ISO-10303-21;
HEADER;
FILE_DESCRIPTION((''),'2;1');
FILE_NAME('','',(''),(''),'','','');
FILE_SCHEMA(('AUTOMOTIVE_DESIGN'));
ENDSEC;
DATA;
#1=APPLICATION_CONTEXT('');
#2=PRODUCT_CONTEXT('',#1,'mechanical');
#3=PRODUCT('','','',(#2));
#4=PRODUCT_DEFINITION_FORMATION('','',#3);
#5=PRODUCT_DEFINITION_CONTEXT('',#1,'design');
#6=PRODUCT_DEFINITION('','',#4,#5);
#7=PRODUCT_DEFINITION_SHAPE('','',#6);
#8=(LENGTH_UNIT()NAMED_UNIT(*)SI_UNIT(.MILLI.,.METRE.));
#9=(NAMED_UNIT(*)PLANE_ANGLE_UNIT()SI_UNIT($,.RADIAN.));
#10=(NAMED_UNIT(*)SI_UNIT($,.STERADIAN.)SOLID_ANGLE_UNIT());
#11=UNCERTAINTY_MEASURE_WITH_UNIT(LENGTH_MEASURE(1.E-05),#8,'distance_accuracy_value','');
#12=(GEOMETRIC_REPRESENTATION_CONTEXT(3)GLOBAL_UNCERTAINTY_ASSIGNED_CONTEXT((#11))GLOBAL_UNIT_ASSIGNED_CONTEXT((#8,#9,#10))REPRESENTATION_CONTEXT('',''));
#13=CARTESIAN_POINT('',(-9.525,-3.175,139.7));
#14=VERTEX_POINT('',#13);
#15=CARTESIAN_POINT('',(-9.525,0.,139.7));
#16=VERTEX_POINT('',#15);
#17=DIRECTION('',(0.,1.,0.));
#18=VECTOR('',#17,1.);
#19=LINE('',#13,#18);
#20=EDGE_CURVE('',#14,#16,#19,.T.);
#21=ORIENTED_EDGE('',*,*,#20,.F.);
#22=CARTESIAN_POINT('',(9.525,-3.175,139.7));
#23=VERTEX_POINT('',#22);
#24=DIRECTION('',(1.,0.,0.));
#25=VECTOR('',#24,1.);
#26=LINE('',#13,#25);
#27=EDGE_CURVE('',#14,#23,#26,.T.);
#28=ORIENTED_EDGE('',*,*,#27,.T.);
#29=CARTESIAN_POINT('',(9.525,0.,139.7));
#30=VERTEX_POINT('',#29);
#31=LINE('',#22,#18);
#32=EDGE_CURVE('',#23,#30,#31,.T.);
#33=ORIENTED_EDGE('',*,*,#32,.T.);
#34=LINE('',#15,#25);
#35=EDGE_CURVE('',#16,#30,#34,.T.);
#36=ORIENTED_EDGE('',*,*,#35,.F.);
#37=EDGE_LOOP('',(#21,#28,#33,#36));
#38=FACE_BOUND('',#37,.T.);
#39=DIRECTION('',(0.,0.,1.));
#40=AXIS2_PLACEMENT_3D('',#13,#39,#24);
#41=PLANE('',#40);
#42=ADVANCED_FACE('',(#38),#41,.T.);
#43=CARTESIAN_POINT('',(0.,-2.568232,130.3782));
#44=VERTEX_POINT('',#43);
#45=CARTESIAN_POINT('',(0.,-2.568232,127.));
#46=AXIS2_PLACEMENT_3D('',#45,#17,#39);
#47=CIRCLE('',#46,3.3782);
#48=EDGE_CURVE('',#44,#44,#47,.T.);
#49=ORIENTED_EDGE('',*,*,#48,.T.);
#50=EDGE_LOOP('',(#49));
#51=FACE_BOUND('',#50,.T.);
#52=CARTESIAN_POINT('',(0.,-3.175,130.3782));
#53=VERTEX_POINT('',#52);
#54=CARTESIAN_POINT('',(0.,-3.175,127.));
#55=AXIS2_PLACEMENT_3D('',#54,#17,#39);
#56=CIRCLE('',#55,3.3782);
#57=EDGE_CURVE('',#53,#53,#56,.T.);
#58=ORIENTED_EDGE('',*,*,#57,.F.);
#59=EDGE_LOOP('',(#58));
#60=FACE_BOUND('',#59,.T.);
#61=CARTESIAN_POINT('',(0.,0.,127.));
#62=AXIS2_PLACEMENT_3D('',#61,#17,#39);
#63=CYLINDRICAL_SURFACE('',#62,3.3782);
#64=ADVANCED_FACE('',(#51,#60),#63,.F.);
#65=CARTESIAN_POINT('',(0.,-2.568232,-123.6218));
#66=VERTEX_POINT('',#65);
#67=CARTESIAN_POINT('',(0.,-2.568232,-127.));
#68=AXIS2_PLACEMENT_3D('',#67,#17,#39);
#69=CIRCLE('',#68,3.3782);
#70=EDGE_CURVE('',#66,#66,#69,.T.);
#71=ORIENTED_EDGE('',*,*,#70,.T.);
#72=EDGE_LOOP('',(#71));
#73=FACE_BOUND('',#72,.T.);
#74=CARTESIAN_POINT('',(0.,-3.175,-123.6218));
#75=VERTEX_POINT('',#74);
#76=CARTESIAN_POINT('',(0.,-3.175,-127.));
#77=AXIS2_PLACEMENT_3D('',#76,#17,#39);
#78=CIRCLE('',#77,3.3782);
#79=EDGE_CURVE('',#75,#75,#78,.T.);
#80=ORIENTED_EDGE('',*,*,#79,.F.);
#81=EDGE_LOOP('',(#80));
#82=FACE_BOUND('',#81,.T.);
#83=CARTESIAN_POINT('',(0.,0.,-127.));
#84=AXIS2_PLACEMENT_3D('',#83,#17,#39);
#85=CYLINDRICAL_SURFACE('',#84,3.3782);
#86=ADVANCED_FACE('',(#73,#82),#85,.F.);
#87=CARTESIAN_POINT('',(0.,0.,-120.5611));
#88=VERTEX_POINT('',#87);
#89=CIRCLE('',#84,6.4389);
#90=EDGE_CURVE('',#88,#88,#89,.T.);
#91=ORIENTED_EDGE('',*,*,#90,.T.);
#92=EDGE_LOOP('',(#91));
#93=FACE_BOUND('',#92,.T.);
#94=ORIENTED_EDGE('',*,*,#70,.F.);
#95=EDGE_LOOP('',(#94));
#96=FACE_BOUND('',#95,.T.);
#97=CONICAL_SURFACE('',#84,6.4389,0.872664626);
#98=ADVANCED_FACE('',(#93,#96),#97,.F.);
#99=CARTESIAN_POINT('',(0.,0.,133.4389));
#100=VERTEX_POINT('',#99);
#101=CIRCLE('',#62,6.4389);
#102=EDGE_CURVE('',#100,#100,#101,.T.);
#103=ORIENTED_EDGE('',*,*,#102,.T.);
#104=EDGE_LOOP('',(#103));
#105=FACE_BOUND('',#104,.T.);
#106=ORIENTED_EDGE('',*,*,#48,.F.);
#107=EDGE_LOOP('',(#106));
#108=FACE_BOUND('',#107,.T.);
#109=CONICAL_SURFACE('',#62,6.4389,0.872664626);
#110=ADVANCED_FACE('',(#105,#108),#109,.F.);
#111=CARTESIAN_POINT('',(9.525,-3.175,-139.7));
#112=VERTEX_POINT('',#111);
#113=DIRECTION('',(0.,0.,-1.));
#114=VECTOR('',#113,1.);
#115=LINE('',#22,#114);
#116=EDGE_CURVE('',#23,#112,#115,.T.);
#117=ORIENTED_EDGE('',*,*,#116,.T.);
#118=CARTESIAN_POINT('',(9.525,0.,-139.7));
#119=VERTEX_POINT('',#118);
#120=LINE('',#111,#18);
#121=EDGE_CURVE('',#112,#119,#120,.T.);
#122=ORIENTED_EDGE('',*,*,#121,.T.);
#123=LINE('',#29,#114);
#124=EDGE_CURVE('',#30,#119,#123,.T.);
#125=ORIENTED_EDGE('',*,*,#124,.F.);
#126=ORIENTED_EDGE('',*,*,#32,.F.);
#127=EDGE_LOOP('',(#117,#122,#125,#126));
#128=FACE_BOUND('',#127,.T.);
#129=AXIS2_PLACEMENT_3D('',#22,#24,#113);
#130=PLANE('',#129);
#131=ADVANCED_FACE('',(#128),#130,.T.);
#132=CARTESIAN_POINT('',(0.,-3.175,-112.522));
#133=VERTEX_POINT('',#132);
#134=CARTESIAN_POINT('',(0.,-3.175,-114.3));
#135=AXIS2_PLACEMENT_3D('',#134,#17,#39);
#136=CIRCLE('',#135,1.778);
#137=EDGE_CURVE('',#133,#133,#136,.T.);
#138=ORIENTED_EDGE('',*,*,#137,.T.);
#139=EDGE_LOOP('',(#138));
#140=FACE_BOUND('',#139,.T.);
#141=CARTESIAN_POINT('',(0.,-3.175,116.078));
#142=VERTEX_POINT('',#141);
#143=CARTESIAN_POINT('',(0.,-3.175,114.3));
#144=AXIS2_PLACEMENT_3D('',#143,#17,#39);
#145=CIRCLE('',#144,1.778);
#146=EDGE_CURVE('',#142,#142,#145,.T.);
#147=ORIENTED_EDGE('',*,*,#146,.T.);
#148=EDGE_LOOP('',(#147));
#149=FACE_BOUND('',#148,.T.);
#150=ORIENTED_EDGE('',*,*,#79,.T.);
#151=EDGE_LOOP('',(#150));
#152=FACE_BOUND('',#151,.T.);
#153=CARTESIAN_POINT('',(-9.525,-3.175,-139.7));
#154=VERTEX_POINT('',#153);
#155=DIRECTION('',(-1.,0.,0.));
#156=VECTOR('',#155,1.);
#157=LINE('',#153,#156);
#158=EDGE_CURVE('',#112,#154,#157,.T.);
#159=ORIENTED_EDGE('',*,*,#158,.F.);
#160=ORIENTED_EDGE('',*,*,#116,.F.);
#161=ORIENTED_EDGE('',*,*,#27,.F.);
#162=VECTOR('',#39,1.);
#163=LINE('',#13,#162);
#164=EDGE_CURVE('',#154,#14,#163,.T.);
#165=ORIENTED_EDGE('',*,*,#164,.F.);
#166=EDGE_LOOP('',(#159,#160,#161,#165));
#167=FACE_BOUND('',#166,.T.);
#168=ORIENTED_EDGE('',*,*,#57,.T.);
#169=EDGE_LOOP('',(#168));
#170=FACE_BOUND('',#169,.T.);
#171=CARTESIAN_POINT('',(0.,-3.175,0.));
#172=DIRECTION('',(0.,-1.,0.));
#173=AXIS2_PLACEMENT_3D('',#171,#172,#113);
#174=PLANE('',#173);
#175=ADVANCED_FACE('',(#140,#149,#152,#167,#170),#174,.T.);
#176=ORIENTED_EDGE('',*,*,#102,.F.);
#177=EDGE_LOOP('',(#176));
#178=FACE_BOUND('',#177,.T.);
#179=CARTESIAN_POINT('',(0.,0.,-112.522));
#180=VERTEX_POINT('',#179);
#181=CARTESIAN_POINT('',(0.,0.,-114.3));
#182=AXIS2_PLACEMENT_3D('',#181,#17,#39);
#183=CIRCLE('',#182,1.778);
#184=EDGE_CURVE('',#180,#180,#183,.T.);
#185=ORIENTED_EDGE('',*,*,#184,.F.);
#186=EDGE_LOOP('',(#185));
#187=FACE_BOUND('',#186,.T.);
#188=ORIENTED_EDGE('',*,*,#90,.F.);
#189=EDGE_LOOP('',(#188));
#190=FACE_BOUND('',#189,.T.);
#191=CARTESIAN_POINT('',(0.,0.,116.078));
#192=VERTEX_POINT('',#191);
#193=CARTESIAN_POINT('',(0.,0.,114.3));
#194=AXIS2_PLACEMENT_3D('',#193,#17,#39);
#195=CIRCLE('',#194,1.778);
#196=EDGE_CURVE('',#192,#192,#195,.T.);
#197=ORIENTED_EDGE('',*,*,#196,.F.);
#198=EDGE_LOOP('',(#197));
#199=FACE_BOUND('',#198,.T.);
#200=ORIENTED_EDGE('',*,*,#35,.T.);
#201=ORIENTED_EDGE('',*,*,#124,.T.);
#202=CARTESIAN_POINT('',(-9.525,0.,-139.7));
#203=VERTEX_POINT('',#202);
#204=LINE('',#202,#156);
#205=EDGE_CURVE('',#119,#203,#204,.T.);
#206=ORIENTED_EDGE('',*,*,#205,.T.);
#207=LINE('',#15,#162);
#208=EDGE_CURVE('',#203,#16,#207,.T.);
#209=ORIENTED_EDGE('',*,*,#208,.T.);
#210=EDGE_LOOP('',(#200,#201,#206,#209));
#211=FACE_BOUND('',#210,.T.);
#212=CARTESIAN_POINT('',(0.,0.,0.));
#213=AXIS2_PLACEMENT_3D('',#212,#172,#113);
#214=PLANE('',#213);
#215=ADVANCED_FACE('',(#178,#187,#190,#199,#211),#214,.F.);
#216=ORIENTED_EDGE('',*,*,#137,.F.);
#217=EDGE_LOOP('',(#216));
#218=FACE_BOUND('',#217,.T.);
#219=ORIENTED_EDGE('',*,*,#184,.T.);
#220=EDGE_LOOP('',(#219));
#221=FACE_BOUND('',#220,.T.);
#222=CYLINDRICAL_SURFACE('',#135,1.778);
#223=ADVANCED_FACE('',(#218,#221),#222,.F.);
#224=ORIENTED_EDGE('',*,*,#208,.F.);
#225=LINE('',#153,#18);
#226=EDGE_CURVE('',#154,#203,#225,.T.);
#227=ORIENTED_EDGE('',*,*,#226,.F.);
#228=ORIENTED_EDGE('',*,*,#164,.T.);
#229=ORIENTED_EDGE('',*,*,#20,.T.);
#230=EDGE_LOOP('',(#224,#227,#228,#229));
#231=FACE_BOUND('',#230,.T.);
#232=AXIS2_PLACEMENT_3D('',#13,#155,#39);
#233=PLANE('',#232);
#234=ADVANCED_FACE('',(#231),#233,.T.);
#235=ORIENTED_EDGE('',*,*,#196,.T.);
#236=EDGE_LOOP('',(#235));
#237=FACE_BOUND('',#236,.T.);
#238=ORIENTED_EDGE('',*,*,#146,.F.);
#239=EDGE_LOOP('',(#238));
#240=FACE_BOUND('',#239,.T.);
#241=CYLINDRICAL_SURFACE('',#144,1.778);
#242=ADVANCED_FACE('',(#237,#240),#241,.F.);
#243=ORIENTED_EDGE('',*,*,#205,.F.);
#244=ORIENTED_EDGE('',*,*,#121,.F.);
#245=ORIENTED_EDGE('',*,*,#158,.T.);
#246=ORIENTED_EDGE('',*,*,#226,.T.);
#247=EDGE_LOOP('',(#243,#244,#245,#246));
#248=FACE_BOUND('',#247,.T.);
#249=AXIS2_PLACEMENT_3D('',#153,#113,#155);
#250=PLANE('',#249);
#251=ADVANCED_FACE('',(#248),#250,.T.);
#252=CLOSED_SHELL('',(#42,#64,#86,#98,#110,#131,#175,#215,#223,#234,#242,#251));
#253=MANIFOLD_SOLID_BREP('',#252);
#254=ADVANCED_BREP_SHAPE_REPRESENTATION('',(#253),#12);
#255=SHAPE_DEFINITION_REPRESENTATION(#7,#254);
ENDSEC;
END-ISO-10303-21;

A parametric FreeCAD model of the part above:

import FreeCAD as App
import Part
import Sketcher

V = App.Vector
Q = App.Units.Quantity

doc = App.newDocument("Part")
body = doc.addObject("PartDesign::Body", "Body")

sketch1 = doc.addObject("Sketcher::SketchObject", "Sketch")
body.addObject(sketch1)
sketch1.AttachmentSupport = (doc.XZ_Plane, [""])
sketch1.MapMode = "FlatFace"
sketch1.addGeometry([
    Part.LineSegment(V(-9.5, -139.7, 0), V(-9.5, 139.7, 0)),
    Part.LineSegment(V(-9.5, 139.7, 0), V(9.5, 139.7, 0)),
    Part.LineSegment(V(9.5, 139.7, 0), V(9.5, -139.7, 0)),
    Part.LineSegment(V(9.5, -139.7, 0), V(-9.5, -139.7, 0)),
    Part.Circle(V(0, 114.3, 0), V(0, 0, 1), 1.8),
    Part.Circle(V(0, -114.3, 0), V(0, 0, 1), 1.8),
], False)
sketch1.addConstraint([
    Sketcher.Constraint("Coincident", 0, 2, 1, 1),
    Sketcher.Constraint("Coincident", 1, 2, 2, 1),
    Sketcher.Constraint("Coincident", 2, 2, 3, 1),
    Sketcher.Constraint("Coincident", 3, 2, 0, 1),
    Sketcher.Constraint("Vertical", 0),
    Sketcher.Constraint("Horizontal", 1),
    Sketcher.Constraint("Vertical", 2),
    Sketcher.Constraint("Horizontal", 3),
    Sketcher.Constraint("Equal", 4, 5),
    Sketcher.Constraint("Symmetric", 4, 3, 5, 3, -1, 1),
    Sketcher.Constraint("Symmetric", 0, 2, 2, 2, -1, 1),
    Sketcher.Constraint("PointOnObject", 4, 3, -2),
    Sketcher.Constraint("Diameter", 4, Q("0.14 in")),
    Sketcher.Constraint("DistanceY", 0, 1, 0, 2, Q("11 in")),
    Sketcher.Constraint("DistanceY", 5, 3, 4, 3, Q("9 in")),
    Sketcher.Constraint("DistanceX", 1, 1, 1, 2, Q("0.75 in")),
])
pad1 = doc.addObject("PartDesign::Pad", "Pad")
body.addObject(pad1)
pad1.Profile = sketch1
pad1.Length = Q("0.125 in")

sketch2 = doc.addObject("Sketcher::SketchObject", "Sketch001")
body.addObject(sketch2)
sketch2.AttachmentSupport = (doc.YZ_Plane, [""])
sketch2.MapMode = "FlatFace"
sketch2.addGeometry([
    Part.LineSegment(V(-3.2, 127, 0), V(0, 127, 0)),
    Part.LineSegment(V(0, 127, 0), V(0, 133.4, 0)),
    Part.LineSegment(V(0, 133.4, 0), V(-2.6, 130.4, 0)),
    Part.LineSegment(V(-2.6, 130.4, 0), V(-3.2, 130.4, 0)),
    Part.LineSegment(V(-3.2, 130.4, 0), V(-3.2, 127, 0)),
], False)
sketch2.addGeometry(Part.LineSegment(V(0, 127, 0), V(-3.2, 127, 0)), True)
sketch2.addConstraint([
    Sketcher.Constraint("Coincident", 0, 2, 1, 1),
    Sketcher.Constraint("Coincident", 1, 2, 2, 1),
    Sketcher.Constraint("Coincident", 2, 2, 3, 1),
    Sketcher.Constraint("Coincident", 3, 2, 4, 1),
    Sketcher.Constraint("Coincident", 4, 2, 0, 1),
    Sketcher.Constraint("Horizontal", 0),
    Sketcher.Constraint("Vertical", 1),
    Sketcher.Constraint("Horizontal", 3),
    Sketcher.Constraint("Vertical", 4),
    Sketcher.Constraint("Horizontal", 5),
    Sketcher.Constraint("Coincident", 5, 1, 0, 2),
    Sketcher.Constraint("PointOnObject", 0, 2, -2),
    Sketcher.Constraint("Vertical", 3, 2, 5, 2),
    Sketcher.Constraint("DistanceY", -1, 1, 0, 2, Q("5 in")),
    Sketcher.Constraint("Angle", 2, Q("-130 deg")),
    Sketcher.Constraint("DistanceX", 0, 1, 0, 2, Q("0.125 in")),
    Sketcher.Constraint("DistanceY", 4, 2, 4, 1, Q("0.133 in")),
    Sketcher.Constraint("DistanceY", 1, 1, 1, 2, Q("0.2535 in")),
])
groove = doc.addObject("PartDesign::Groove", "Groove")
body.addObject(groove)
groove.Profile = sketch2
groove.ReferenceAxis = (sketch2, ["Axis0"])
groove.Angle = 360
doc.recompute()

linearpattern = doc.addObject("PartDesign::LinearPattern", "LinearPattern")
body.addObject(linearpattern)
linearpattern.Originals = [groove]
linearpattern.Direction = (doc.Z_Axis, [""])
linearpattern.Mode = "offset"
linearpattern.Offset = Q("10 in")
linearpattern.Occurrences = 2
linearpattern.Reversed = True
body.Tip = linearpattern

doc.recompute()
